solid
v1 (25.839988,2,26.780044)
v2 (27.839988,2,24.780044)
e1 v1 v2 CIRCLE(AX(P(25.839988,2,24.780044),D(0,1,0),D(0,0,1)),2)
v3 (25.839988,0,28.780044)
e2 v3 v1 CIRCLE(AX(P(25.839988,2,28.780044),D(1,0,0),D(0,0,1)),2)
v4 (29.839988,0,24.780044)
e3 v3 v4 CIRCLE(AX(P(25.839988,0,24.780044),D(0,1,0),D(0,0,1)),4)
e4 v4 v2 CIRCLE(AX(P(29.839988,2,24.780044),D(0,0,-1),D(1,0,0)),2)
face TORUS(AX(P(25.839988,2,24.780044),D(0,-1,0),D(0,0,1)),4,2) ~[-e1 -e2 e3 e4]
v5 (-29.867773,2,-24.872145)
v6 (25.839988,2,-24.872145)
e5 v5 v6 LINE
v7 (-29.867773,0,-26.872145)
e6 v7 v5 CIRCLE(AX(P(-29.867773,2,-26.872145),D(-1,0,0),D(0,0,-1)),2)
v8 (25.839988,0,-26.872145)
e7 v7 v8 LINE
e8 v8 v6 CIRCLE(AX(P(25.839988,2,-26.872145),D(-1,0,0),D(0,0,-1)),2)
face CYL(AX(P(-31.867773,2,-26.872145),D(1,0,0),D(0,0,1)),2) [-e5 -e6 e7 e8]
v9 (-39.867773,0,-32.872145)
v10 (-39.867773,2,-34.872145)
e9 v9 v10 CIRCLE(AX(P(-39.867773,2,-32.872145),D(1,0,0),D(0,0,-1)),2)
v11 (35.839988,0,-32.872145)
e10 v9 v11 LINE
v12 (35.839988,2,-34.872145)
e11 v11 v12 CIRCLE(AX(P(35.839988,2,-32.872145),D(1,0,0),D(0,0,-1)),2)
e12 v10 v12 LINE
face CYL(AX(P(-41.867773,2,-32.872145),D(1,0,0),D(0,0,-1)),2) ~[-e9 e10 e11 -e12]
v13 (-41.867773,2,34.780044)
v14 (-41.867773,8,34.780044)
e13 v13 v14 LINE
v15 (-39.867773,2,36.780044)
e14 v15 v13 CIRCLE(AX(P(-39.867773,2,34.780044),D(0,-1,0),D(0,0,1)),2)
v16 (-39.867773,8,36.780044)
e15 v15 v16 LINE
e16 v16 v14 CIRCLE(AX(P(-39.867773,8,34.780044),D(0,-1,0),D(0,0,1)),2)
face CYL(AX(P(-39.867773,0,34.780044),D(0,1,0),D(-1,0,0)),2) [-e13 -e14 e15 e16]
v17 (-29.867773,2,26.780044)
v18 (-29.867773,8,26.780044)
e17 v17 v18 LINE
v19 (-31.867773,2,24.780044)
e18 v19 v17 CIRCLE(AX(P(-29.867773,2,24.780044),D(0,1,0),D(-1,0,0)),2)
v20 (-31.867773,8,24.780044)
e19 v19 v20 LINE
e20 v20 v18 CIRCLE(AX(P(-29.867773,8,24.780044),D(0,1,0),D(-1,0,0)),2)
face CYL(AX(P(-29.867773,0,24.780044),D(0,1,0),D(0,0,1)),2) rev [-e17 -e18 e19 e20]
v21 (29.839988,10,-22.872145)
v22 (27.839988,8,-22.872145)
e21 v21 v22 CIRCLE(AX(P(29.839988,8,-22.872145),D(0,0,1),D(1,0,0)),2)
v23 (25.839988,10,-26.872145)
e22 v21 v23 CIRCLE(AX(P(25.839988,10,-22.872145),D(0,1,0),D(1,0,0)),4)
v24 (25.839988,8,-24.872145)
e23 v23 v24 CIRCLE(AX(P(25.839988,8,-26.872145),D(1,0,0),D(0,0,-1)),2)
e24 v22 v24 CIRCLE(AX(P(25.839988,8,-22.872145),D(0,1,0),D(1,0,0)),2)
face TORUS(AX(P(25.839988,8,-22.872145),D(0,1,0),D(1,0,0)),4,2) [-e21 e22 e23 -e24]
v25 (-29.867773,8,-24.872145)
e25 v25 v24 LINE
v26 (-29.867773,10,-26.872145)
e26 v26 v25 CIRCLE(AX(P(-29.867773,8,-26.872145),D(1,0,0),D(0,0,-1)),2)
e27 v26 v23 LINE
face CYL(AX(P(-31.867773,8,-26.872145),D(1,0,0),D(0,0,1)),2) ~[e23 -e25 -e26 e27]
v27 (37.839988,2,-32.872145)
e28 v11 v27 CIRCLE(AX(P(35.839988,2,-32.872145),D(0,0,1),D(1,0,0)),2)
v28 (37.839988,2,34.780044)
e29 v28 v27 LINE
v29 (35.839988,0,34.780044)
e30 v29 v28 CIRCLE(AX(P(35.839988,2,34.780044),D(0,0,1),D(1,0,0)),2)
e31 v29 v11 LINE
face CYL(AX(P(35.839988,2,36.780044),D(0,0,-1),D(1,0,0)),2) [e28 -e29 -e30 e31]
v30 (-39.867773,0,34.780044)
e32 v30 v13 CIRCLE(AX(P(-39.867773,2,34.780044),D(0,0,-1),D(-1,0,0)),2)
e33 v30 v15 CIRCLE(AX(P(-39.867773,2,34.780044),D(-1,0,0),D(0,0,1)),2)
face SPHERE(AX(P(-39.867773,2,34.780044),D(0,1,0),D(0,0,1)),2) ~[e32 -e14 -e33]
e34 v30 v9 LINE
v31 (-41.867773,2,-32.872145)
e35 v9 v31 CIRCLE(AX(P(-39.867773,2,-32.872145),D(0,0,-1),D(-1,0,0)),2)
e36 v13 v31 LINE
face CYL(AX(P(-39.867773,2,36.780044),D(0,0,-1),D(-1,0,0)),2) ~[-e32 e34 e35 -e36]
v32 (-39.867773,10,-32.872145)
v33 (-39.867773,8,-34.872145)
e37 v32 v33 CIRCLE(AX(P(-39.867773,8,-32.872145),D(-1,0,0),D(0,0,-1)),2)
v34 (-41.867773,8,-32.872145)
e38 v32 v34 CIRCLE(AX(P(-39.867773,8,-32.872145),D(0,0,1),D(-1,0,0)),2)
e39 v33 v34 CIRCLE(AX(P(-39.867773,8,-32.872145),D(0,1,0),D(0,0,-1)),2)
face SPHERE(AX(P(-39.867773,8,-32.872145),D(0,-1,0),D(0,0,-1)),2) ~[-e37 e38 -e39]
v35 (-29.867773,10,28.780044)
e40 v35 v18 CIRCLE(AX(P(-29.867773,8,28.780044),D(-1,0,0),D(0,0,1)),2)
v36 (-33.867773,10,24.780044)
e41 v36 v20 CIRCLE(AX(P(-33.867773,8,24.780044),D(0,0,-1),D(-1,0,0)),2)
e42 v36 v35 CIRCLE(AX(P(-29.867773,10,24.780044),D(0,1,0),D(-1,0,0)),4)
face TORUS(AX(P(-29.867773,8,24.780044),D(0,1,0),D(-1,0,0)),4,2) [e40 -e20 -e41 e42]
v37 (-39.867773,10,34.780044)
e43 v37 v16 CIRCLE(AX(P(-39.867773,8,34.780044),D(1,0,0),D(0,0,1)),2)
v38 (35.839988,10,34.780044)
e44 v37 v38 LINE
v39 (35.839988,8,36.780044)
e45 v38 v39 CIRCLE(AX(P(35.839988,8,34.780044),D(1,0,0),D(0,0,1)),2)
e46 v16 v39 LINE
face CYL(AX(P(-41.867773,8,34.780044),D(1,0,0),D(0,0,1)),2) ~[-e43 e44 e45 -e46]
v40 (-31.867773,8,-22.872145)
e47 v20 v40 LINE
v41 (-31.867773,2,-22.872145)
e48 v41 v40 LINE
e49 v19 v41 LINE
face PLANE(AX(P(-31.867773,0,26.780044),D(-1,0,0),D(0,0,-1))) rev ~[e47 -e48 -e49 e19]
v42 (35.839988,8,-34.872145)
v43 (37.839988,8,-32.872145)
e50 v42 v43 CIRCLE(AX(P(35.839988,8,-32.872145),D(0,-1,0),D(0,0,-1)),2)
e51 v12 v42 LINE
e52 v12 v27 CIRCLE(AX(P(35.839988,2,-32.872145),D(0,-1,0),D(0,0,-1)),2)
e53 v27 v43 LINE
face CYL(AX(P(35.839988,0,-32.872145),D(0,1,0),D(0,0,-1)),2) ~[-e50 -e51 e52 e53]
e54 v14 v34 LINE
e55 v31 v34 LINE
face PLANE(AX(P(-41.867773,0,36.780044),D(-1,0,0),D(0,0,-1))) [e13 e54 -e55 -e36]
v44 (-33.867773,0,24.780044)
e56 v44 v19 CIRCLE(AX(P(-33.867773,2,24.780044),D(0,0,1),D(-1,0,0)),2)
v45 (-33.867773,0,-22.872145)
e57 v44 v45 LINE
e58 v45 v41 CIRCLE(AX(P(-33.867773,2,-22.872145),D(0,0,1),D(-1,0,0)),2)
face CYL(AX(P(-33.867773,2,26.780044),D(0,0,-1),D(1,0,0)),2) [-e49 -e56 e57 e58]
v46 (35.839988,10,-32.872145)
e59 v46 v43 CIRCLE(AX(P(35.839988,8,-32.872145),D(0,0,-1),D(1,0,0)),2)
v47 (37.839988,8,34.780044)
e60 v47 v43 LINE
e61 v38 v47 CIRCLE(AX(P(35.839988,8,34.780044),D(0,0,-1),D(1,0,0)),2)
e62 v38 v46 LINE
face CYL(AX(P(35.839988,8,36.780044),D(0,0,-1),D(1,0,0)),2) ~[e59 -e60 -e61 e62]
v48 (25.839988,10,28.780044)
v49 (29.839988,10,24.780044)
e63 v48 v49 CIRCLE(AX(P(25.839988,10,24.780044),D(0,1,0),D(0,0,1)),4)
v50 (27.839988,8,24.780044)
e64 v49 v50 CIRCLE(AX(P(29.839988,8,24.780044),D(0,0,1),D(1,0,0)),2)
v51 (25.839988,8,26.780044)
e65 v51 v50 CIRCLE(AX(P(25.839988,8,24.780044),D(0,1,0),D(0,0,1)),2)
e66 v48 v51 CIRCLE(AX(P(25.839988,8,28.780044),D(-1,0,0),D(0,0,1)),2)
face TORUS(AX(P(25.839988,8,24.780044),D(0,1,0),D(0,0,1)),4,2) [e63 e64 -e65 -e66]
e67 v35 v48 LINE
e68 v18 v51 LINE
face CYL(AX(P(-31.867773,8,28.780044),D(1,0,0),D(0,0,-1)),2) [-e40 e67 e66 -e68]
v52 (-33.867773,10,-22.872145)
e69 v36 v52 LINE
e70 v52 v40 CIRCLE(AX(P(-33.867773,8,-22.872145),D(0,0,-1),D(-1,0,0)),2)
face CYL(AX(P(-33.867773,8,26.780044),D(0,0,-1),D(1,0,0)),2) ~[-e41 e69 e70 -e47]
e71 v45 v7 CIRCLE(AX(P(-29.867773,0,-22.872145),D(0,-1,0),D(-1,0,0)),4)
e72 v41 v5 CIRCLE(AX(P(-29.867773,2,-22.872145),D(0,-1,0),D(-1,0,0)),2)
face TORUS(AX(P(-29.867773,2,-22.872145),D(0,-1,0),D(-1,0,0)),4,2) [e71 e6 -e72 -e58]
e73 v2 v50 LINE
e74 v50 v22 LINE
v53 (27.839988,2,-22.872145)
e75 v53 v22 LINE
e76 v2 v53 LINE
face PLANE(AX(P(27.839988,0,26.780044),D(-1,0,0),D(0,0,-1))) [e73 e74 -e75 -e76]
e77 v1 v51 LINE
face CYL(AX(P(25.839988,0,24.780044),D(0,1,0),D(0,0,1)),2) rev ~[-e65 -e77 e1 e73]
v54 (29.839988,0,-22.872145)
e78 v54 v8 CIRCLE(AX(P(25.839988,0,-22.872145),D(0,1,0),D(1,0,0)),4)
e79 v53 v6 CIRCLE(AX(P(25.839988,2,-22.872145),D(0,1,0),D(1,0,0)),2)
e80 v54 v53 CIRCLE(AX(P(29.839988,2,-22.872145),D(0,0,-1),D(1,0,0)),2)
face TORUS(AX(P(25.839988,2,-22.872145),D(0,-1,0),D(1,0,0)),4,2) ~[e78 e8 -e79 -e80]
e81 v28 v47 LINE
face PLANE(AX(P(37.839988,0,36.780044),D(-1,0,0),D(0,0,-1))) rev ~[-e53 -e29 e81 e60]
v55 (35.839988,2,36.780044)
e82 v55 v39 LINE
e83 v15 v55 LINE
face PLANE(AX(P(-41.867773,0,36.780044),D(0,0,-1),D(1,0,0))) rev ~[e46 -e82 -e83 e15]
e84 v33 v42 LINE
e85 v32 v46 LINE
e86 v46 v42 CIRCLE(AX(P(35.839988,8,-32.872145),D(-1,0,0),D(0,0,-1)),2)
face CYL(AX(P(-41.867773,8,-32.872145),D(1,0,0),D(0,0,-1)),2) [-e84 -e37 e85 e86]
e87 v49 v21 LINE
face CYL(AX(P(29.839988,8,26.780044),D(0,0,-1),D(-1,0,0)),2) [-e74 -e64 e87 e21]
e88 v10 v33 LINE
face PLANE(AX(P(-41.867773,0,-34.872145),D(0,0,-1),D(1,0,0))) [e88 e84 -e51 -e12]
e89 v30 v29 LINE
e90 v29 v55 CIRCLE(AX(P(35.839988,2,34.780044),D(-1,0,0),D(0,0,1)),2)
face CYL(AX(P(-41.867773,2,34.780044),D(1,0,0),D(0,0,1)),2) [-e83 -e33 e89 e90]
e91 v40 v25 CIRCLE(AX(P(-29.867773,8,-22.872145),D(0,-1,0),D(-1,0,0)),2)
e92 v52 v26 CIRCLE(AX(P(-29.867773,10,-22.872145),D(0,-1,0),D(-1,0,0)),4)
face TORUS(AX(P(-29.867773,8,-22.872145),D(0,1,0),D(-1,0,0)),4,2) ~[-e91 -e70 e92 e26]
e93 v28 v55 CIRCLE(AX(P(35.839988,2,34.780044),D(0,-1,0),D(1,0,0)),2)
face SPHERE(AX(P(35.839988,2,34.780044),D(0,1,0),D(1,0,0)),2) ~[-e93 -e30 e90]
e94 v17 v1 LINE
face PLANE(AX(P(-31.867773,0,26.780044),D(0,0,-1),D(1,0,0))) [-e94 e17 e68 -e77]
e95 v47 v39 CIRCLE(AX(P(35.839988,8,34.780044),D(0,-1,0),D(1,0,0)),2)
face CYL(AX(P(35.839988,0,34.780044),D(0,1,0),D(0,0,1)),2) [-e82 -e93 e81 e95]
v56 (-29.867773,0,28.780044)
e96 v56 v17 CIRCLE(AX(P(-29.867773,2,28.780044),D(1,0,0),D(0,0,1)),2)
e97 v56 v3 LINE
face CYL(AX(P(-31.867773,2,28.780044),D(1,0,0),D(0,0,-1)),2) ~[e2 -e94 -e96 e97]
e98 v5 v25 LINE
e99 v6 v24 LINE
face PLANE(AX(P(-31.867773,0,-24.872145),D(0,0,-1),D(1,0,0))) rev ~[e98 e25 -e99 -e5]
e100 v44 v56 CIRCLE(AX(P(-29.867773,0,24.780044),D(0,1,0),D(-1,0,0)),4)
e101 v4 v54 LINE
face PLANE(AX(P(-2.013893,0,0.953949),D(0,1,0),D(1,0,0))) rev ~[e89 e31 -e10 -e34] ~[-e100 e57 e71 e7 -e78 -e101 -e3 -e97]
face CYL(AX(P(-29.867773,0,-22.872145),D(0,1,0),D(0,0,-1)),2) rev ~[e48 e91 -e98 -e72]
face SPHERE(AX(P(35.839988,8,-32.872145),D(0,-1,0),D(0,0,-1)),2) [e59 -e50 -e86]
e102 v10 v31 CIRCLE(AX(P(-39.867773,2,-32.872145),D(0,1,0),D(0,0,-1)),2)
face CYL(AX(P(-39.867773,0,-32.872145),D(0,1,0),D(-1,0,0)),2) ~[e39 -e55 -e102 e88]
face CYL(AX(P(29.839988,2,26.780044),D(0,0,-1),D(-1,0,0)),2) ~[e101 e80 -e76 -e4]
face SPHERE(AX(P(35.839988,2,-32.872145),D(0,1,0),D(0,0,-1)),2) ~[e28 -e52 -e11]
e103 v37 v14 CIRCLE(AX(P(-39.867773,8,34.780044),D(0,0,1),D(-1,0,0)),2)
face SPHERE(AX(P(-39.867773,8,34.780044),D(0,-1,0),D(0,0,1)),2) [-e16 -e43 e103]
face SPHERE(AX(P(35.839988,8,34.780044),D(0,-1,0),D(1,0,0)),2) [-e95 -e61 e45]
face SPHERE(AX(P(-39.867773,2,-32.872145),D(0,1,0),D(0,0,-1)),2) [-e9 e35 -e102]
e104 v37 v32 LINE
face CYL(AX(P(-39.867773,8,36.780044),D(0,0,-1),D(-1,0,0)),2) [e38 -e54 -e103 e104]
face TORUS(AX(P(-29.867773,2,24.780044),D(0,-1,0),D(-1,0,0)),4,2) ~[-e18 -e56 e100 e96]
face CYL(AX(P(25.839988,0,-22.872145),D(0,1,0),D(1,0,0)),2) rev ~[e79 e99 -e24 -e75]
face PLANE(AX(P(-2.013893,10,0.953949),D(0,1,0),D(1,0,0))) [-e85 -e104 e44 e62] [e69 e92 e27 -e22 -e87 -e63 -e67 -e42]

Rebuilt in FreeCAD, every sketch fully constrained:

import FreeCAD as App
import Part
import Sketcher

V = App.Vector
Q = App.Units.Quantity


def add_polygon(sketch, points):
    """Adds a closed chain of lines whose ends are joined by coincident constraints."""
    first, n = sketch.GeometryCount, len(points)
    for a, b in zip(points, points[1:] + points[:1]):
        sketch.addGeometry(Part.LineSegment(App.Vector(*a, 0), App.Vector(*b, 0)), False)
    for i in range(n):
        sketch.addConstraint(Sketcher.Constraint("Coincident", first + i, 2, first + (i + 1) % n, 1))

doc = App.newDocument("Part")
body = doc.addObject("PartDesign::Body", "Body")

# Sketch on XZ plane
sketch1 = doc.addObject("Sketcher::SketchObject", "Sketch")
body.addObject(sketch1)
sketch1.AttachmentSupport = (doc.XZ_Plane, [""])
sketch1.MapMode = "FlatFace"
add_polygon(sketch1, [(-42, -35), (-42, 37), (38, 37), (38, -35)])  # lines 0-3
add_polygon(sketch1, [(28, 27), (-32, 27), (-32, -25), (28, -25)])  # lines 4-7
sketch1.addConstraint(Sketcher.Constraint("Vertical", 0))
sketch1.addConstraint(Sketcher.Constraint("Horizontal", 1))
sketch1.addConstraint(Sketcher.Constraint("Vertical", 2))
sketch1.addConstraint(Sketcher.Constraint("Horizontal", 3))
sketch1.addConstraint(Sketcher.Constraint("Horizontal", 4))
sketch1.addConstraint(Sketcher.Constraint("Vertical", 5))
sketch1.addConstraint(Sketcher.Constraint("Horizontal", 6))
sketch1.addConstraint(Sketcher.Constraint("Vertical", 7))
sketch1.addConstraint(Sketcher.Constraint("DistanceX", 0, 2, 4, 2, Q("10 mm")))
sketch1.addConstraint(Sketcher.Constraint("DistanceY", 4, 2, 0, 2, Q("10 mm")))
sketch1.addConstraint(Sketcher.Constraint("DistanceY", 3, 2, 5, 2, Q("10 mm")))
sketch1.addConstraint(Sketcher.Constraint("DistanceX", 6, 2, 2, 2, Q("10 mm")))
sketch1.addConstraint(Sketcher.Constraint("DistanceX", 1, 1, 1, 2, Q("79.707761 mm")))
sketch1.addConstraint(Sketcher.Constraint("DistanceY", 0, 1, 0, 2, Q("71.652189 mm")))
sketch1.addConstraint(Sketcher.Constraint("DistanceX", 0, 2, -1, 1, Q("41.867773 mm")))
sketch1.addConstraint(Sketcher.Constraint("DistanceY", -1, 1, 0, 2, Q("36.780044 mm")))
pad1 = doc.addObject("PartDesign::Pad", "Pad")
body.addObject(pad1)
pad1.Profile = sketch1
pad1.Length = 10
pad1.Reversed = True
doc.recompute()

fillet = doc.addObject("PartDesign::Fillet", "Fillet")
body.addObject(fillet)
fillet.Base = (pad1, ["Edge1"])
fillet.UseAllEdges = True
fillet.Radius = 2

doc.recompute()
